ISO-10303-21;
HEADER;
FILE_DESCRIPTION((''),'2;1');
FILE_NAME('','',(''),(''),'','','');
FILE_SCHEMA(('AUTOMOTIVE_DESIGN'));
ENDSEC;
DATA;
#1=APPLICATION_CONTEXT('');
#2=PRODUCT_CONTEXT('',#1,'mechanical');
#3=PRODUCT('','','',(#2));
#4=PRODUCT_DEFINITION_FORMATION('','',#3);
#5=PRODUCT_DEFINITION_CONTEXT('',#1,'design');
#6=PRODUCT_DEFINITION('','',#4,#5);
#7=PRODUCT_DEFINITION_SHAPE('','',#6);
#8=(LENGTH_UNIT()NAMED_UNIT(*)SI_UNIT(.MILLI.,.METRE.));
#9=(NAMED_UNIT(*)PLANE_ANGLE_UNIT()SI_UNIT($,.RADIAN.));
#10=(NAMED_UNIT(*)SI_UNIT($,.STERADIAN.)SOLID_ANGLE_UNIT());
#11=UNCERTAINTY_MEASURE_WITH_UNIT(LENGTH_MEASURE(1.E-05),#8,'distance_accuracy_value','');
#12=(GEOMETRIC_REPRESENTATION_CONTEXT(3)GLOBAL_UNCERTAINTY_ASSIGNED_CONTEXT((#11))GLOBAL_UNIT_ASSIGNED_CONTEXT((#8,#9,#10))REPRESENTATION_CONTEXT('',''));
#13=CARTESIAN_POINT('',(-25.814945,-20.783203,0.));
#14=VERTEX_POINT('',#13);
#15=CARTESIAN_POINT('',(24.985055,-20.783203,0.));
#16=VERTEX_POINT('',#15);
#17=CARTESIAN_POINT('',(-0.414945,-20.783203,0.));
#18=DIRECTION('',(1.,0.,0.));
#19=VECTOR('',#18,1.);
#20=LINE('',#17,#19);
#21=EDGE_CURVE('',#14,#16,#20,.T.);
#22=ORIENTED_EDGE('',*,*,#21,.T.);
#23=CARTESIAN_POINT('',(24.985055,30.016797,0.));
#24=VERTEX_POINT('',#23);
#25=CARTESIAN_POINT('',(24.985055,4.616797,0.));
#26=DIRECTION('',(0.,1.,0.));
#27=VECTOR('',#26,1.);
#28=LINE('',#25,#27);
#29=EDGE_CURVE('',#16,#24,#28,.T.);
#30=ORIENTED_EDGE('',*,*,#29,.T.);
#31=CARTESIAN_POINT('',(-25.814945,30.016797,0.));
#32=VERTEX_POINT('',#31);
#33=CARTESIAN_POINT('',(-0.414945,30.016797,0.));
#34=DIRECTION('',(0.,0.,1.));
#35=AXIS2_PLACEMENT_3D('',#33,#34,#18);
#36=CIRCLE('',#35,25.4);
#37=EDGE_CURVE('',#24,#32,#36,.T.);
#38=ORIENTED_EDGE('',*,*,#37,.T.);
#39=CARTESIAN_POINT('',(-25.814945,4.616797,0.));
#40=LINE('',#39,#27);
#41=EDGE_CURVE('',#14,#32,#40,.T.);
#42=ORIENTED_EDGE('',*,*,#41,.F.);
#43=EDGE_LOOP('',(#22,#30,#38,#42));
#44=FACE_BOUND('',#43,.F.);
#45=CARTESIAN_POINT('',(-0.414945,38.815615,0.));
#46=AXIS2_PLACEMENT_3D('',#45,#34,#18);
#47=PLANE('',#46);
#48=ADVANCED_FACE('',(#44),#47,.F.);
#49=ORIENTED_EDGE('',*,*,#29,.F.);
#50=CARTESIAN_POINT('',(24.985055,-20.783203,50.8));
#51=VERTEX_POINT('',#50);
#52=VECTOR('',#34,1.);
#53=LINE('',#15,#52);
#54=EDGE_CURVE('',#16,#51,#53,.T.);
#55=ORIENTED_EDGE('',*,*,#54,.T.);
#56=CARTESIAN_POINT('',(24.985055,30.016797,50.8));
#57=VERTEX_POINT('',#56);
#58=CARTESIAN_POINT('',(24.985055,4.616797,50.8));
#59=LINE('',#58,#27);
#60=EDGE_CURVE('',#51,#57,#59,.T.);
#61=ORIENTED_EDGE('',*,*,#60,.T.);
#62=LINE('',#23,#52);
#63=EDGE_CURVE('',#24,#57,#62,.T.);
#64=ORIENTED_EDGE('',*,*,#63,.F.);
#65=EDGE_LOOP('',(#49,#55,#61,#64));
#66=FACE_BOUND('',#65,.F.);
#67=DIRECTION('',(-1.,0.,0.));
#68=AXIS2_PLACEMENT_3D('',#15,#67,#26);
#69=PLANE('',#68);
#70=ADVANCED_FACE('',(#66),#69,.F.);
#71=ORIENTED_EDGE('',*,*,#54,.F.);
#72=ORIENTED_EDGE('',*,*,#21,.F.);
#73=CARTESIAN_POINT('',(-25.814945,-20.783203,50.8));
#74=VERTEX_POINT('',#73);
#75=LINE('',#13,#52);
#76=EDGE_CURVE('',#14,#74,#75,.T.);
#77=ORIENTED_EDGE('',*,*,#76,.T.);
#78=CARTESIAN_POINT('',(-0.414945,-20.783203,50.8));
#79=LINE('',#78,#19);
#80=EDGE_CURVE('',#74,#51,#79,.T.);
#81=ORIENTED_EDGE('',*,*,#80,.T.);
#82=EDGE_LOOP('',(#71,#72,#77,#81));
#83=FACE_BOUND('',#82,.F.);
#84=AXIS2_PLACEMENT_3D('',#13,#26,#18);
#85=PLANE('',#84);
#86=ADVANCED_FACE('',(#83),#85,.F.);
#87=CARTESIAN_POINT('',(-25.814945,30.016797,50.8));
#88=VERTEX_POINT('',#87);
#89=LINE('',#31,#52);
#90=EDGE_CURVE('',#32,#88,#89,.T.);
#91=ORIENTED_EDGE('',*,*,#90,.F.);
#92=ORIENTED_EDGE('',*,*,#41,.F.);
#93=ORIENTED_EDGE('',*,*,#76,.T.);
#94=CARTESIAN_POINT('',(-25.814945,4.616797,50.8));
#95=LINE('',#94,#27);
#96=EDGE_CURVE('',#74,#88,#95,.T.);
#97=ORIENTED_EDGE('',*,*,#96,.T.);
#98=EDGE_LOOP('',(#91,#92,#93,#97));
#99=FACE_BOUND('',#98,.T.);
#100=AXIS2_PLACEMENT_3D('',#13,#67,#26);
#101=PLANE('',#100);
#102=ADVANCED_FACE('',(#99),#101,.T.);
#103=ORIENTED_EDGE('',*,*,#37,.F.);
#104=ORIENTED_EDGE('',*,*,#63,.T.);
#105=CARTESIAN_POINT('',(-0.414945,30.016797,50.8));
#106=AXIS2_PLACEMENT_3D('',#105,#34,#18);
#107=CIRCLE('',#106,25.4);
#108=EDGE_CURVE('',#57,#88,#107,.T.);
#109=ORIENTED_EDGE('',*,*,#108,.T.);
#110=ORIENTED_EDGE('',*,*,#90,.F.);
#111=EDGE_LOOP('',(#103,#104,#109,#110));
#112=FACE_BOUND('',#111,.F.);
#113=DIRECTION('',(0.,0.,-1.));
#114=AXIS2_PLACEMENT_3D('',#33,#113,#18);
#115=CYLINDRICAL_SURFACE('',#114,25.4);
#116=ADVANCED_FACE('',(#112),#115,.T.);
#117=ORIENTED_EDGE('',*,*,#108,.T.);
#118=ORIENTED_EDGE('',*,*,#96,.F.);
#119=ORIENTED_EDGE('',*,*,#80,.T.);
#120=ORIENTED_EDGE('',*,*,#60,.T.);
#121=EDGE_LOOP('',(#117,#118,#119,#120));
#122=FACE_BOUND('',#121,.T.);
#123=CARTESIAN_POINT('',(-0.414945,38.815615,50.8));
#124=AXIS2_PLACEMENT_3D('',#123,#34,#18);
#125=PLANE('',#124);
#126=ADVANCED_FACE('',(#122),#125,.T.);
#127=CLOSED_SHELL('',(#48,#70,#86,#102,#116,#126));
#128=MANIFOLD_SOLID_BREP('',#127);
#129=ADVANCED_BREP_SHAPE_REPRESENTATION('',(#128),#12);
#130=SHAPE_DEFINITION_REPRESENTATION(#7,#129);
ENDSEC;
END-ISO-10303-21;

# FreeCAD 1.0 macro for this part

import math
import FreeCAD as App
import Part
import Sketcher
Q = App.Units.Quantity

doc = App.newDocument("Part")
body = doc.addObject("PartDesign::Body", "Body")

# Sketch on XY plane
sketch1 = doc.addObject("Sketcher::SketchObject", "Sketch")
body.addObject(sketch1)
sketch1.AttachmentSupport = (doc.XY_Plane, [""])
sketch1.MapMode = "FlatFace"
sketch1.addGeometry([
    Part.LineSegment(App.Vector(-26, 30, 0), App.Vector(-26, -21, 0)),
    Part.LineSegment(App.Vector(-26, -21, 0), App.Vector(25, -21, 0)),
    Part.LineSegment(App.Vector(25, -21, 0), App.Vector(25, 30, 0)),
    Part.LineSegment(App.Vector(25, 30, 0), App.Vector(-26, 30, 0)),
], False)
sketch1.addConstraint([
    Sketcher.Constraint("Coincident", 0, 2, 1, 1),
    Sketcher.Constraint("Coincident", 1, 2, 2, 1),
    Sketcher.Constraint("Coincident", 2, 2, 3, 1),
    Sketcher.Constraint("Coincident", 3, 2, 0, 1),
    Sketcher.Constraint("Vertical", 0),
    Sketcher.Constraint("Horizontal", 1),
    Sketcher.Constraint("Vertical", 2),
    Sketcher.Constraint("Horizontal", 3),
    Sketcher.Constraint("Equal", 3, 0),
    Sketcher.Constraint("DistanceX", 1, 1, 1, 2, Q("2 in")),
    Sketcher.Constraint("DistanceX", 0, 2, -1, 1, 25.814945),
    Sketcher.Constraint("DistanceY", 0, 2, -1, 1, 20.783203),
])
pad1 = doc.addObject("PartDesign::Pad", "Pad")
body.addObject(pad1)
pad1.Profile = sketch1
pad1.Length = Q("2 in")

# Sketch on XY plane
sketch2 = doc.addObject("Sketcher::SketchObject", "Sketch001")
body.addObject(sketch2)
sketch2.AttachmentSupport = (doc.XY_Plane, [""])
sketch2.MapMode = "FlatFace"
sketch2.addGeometry([
    Part.ArcOfCircle(Part.Circle(App.Vector(0, 30, 0), App.Vector(0, 0, 1), 25), math.radians(0), math.radians(180)),
    Part.LineSegment(App.Vector(-26, 30, 0), App.Vector(25, 30, 0)),
], False)
sketch2.addConstraint([
    Sketcher.Constraint("Coincident", 0, 1, 1, 2),
    Sketcher.Constraint("Coincident", 1, 1, 0, 2),
    Sketcher.Constraint("Horizontal", 1),
    Sketcher.Constraint("Radius", 0, Q("1 in")),
    Sketcher.Constraint("DistanceX", 0, 3, -1, 1, 0.414945),
    Sketcher.Constraint("DistanceY", -1, 1, 0, 3, 30.016797),
    Sketcher.Constraint("DistanceY", -1, 1, 0, 1, 30.016797),
])
pad2 = doc.addObject("PartDesign::Pad", "Pad001")
body.addObject(pad2)
pad2.Profile = sketch2
pad2.Length = Q("2 in")

doc.recompute()
